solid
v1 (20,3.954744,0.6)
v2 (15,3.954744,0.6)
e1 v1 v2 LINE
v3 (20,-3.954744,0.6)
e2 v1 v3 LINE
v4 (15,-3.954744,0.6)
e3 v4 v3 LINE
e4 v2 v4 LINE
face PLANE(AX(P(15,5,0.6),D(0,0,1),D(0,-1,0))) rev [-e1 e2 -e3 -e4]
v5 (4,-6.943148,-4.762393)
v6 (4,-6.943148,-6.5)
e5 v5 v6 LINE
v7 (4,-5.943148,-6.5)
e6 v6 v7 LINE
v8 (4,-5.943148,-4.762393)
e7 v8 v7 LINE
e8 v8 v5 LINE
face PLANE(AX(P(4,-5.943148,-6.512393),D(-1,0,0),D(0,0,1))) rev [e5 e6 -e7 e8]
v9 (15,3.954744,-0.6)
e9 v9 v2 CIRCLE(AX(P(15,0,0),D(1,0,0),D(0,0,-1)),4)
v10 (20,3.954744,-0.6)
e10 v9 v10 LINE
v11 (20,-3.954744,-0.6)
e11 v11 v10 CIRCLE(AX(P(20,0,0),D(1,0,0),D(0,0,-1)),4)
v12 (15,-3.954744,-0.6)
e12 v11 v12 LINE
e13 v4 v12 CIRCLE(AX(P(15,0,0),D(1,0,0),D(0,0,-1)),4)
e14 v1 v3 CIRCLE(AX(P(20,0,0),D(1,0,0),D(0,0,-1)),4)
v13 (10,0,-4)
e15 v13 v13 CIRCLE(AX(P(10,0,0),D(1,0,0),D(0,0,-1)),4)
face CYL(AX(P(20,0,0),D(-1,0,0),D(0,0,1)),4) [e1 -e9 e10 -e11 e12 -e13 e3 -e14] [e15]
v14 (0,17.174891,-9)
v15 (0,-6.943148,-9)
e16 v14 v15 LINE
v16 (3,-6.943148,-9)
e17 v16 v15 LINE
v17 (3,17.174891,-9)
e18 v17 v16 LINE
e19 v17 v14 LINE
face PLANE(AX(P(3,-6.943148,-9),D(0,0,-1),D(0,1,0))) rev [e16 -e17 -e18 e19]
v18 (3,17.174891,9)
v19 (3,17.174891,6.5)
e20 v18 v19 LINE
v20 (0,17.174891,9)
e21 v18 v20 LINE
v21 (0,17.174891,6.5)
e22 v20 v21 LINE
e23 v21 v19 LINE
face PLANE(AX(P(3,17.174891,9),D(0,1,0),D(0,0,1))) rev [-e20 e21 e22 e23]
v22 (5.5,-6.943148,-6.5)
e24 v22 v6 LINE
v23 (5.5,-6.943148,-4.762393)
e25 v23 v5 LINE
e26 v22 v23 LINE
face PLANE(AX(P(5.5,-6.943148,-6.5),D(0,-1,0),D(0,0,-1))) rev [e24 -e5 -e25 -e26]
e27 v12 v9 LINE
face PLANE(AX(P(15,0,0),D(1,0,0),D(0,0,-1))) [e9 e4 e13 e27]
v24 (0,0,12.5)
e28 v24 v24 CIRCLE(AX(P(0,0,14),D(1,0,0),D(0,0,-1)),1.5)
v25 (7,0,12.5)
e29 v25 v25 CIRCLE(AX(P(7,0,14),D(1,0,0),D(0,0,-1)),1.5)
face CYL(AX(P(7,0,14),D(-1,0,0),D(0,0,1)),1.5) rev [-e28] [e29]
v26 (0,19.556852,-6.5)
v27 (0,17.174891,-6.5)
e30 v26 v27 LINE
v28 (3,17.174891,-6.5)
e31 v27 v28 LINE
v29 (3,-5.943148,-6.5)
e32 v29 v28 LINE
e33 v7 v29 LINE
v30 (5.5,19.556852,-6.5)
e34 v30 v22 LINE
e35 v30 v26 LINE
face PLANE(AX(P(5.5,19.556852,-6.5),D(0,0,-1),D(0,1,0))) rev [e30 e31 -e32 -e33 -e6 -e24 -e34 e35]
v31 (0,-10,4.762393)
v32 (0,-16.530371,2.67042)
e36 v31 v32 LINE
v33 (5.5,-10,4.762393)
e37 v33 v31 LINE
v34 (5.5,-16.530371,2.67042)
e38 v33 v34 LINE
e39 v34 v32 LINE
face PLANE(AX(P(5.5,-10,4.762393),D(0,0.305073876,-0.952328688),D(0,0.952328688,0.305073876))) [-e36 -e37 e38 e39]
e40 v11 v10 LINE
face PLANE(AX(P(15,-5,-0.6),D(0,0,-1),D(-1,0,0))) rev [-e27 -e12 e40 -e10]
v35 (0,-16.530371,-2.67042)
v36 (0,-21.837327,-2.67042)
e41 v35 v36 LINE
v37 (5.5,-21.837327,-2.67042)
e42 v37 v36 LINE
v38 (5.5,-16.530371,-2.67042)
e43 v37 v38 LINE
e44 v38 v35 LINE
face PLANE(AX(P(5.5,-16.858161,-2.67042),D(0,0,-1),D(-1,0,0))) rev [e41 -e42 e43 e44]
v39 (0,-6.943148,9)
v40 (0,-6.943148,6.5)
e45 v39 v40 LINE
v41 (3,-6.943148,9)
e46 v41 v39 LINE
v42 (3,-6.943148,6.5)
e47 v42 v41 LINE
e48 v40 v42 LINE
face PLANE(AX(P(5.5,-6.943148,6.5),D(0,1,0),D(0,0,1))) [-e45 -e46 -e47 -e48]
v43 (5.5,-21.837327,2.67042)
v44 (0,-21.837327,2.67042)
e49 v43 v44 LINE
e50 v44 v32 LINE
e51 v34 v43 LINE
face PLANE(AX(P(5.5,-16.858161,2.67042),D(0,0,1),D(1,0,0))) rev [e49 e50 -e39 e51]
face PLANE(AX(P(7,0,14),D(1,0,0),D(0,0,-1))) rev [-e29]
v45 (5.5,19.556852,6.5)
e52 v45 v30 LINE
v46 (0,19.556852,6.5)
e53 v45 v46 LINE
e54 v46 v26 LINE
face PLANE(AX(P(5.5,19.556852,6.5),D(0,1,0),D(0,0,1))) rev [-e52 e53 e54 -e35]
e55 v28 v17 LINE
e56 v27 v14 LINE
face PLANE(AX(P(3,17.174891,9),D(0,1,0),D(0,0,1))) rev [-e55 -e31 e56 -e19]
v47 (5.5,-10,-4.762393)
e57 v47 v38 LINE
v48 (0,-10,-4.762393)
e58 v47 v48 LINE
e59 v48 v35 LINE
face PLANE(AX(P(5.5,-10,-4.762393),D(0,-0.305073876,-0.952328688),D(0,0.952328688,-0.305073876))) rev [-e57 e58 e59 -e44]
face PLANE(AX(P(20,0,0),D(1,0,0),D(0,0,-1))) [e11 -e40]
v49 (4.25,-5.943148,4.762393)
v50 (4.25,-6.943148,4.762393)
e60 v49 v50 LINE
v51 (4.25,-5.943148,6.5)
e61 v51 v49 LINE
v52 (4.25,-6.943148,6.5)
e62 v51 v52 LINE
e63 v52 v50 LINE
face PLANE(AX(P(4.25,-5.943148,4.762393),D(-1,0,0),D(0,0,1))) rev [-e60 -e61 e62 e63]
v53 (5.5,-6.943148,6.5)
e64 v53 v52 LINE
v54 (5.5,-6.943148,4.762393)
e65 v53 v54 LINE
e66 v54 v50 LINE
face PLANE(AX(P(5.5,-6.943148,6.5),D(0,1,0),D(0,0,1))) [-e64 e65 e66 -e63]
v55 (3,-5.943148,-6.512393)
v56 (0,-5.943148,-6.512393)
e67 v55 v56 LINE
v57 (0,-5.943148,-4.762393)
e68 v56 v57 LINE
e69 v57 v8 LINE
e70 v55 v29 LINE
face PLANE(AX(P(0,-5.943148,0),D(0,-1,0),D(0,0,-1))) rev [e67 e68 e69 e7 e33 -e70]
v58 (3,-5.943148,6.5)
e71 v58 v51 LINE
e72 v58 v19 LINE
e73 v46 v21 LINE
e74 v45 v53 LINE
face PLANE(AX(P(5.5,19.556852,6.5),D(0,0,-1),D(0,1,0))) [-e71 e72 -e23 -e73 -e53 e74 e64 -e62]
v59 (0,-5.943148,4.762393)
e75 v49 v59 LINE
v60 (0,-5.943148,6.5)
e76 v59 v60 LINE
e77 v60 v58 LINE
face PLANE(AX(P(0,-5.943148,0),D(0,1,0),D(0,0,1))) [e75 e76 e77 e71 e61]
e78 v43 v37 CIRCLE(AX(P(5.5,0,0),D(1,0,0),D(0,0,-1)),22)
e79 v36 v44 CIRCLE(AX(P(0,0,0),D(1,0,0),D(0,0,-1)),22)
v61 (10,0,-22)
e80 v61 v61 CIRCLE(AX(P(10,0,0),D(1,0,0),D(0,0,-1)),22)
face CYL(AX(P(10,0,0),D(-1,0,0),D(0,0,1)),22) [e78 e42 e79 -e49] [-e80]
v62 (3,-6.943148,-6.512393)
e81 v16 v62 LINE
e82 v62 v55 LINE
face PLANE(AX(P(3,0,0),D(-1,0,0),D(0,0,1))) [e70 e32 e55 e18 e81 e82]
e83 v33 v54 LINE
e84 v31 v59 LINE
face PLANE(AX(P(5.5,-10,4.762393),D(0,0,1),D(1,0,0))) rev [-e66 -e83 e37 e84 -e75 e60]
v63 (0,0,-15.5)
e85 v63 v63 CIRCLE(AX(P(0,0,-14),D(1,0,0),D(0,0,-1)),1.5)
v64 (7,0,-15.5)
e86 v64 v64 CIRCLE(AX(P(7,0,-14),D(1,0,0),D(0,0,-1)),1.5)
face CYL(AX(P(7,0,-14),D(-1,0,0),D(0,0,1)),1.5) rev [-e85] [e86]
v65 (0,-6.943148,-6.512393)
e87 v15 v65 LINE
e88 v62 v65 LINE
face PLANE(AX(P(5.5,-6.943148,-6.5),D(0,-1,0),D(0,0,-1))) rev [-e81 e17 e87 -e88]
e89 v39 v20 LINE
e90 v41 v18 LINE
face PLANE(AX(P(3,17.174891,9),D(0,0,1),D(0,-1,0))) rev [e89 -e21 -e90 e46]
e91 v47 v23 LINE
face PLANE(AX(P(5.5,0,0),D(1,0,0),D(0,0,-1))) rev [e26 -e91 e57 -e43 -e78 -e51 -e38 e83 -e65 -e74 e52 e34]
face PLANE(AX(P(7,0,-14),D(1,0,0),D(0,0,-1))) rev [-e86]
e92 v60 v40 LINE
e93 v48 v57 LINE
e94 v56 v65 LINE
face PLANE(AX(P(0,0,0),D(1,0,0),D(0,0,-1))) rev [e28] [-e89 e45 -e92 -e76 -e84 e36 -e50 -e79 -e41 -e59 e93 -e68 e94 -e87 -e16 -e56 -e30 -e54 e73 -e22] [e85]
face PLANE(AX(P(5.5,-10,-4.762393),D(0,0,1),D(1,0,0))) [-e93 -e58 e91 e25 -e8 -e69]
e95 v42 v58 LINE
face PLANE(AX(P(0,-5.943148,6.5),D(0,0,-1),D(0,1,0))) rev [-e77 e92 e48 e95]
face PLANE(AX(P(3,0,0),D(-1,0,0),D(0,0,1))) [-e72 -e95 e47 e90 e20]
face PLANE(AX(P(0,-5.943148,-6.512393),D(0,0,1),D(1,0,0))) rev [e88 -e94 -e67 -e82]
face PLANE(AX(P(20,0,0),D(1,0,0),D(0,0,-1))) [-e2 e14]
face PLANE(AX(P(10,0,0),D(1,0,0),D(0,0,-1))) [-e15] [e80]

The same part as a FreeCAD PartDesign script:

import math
import FreeCAD as App
import Part
import Sketcher

V = App.Vector
Q = App.Units.Quantity


def add_polygon(sketch, points):
    """Adds a closed chain of lines whose ends are joined by coincident constraints."""
    first, n = sketch.GeometryCount, len(points)
    for a, b in zip(points, points[1:] + points[:1]):
        sketch.addGeometry(Part.LineSegment(App.Vector(*a, 0), App.Vector(*b, 0)), False)
    for i in range(n):
        sketch.addConstraint(Sketcher.Constraint("Coincident", first + i, 2, first + (i + 1) % n, 1))

doc = App.newDocument("Part")
params = doc.addObject("Spreadsheet::Sheet", "Params")
for row, (alias, value) in enumerate([
    ("sketch1_diameter", "44 mm"),
    ("pad1_length", "10 mm"),
    ("sketch2_radius", "22 mm"),
    ("sketch2_height", "13 mm"),
    ("sketch2_width", "26.5 mm"),
    ("pocket1_length", "5.5 mm"),
    ("sketch3_height", "18 mm"),
    ("pocket2_length", "3 mm"),
    ("sketch4_diameter", "8 mm"),
    ("pad2_length", "10 mm"),
    ("sketch5_width", "10 mm"),
    ("sketch5_height", "1.2 mm"),
    ("pocket3_length", "5 mm"),
    ("sketch6_width", "4 mm"),
    ("sketch6_height", "1.75 mm"),
    ("pad3_length", "1 mm"),
    ("sketch7_width", "4.25 mm"),
    ("pad4_length", "1 mm"),
    ("sketch8_diameter", "3 mm"),
    ("pocket4_length", "7 mm"),
], start=1):
    params.set(f"A{row}", alias)
    params.set(f"B{row}", "=" + value)
    params.setAlias(f"B{row}", alias)

body = doc.addObject("PartDesign::Body", "Body")

# Sketch on YZ plane
sketch1 = body.newObject("Sketcher::SketchObject", "Sketch")
sketch1.AttachmentSupport = (doc.getObject("YZ_Plane"), [""])
sketch1.MapMode = "FlatFace"
sketch1.addGeometry(Part.Circle(V(0, 0, 0), V(0, 0, 1), 22), False)
sketch1.addConstraint([
    Sketcher.Constraint("Coincident", 0, 3, -1, 1),
    Sketcher.Constraint("Diameter", 0, Q("44 mm")),
])
sketch1.setExpression("Constraints[1]", "Params.sketch1_diameter")
pad1 = body.newObject("PartDesign::Pad", "Pad")
pad1.Profile = sketch1
pad1.setExpression("Length", "Params.pad1_length")

# Sketch on YZ plane
sketch2 = body.newObject("Sketcher::SketchObject", "Sketch001")
sketch2.AttachmentSupport = (doc.getObject("YZ_Plane"), [""])
sketch2.MapMode = "FlatFace"
sketch2.addGeometry([
    Part.LineSegment(V(-10, 4.762393, 0), V(-16.530371, 2.67042, 0)),  # 0
    Part.LineSegment(V(-16.530371, 2.67042, 0), V(-21.837327, 2.67042, 0)),  # 1
    Part.ArcOfCircle(Part.Circle(V(0, 0, 0), V(0, 0, 1), 22), math.radians(173.028089), math.radians(177.393224)),  # 2
    Part.LineSegment(V(-21.977234, 1.000585, 0), V(-25.25, 0, 0)),  # 3
    Part.LineSegment(V(-25.25, 0, 0), V(-21.977234, -1.000585, 0)),  # 4
    Part.ArcOfCircle(Part.Circle(V(0, 0, 0), V(0, 0, 1), 22), math.radians(-177.393224), math.radians(-173.028089)),  # 5
    Part.LineSegment(V(-21.837327, -2.67042, 0), V(-16.530371, -2.67042, 0)),  # 6
    Part.LineSegment(V(-16.530371, -2.67042, 0), V(-10, -4.762393, 0)),  # 7
    Part.LineSegment(V(-10, -4.762393, 0), V(-6.943148, -4.762393, 0)),  # 8
    Part.LineSegment(V(-6.943148, -4.762393, 0), V(-6.943148, -6.5, 0)),  # 9
    Part.LineSegment(V(-6.943148, -6.5, 0), V(19.556852, -6.5, 0)),  # 10
    Part.LineSegment(V(19.556852, -6.5, 0), V(19.556852, 6.5, 0)),  # 11
    Part.LineSegment(V(19.556852, 6.5, 0), V(-6.943148, 6.5, 0)),  # 12
    Part.LineSegment(V(-6.943148, 6.5, 0), V(-6.943148, 4.762393, 0)),  # 13
    Part.LineSegment(V(-6.943148, 4.762393, 0), V(-10, 4.762393, 0)),  # 14
], False)
sketch2.addConstraint([
    Sketcher.Constraint("Coincident", 0, 2, 1, 1),
    Sketcher.Constraint("Coincident", 1, 2, 2, 1),
    Sketcher.Constraint("Coincident", 2, 2, 3, 1),
    Sketcher.Constraint("Coincident", 3, 2, 4, 1),
    Sketcher.Constraint("Coincident", 4, 2, 5, 1),
    Sketcher.Constraint("Coincident", 5, 2, 6, 1),
    Sketcher.Constraint("Coincident", 6, 2, 7, 1),
    Sketcher.Constraint("Coincident", 7, 2, 8, 1),
    Sketcher.Constraint("Coincident", 8, 2, 9, 1),
    Sketcher.Constraint("Coincident", 9, 2, 10, 1),
    Sketcher.Constraint("Coincident", 10, 2, 11, 1),
    Sketcher.Constraint("Coincident", 11, 2, 12, 1),
    Sketcher.Constraint("Coincident", 12, 2, 13, 1),
    Sketcher.Constraint("Coincident", 13, 2, 14, 1),
    Sketcher.Constraint("Coincident", 14, 2, 0, 1),
    Sketcher.Constraint("Horizontal", 1),
    Sketcher.Constraint("Horizontal", 6),
    Sketcher.Constraint("Horizontal", 8),
    Sketcher.Constraint("Vertical", 9),
    Sketcher.Constraint("Horizontal", 10),
    Sketcher.Constraint("Vertical", 11),
    Sketcher.Constraint("Horizontal", 12),
    Sketcher.Constraint("Vertical", 13),
    Sketcher.Constraint("Horizontal", 14),
    Sketcher.Constraint("Coincident", 2, 3, -1, 1),
    Sketcher.Constraint("Coincident", 5, 3, -1, 1),
    Sketcher.Constraint("Equal", 2, 5),
    Sketcher.Constraint("Symmetric", 0, 2, 6, 2, -1),
    Sketcher.Constraint("Symmetric", 9, 2, 12, 2, -1),
    Sketcher.Constraint("Symmetric", 7, 2, 14, 2, -1),
    Sketcher.Constraint("PointOnObject", 3, 2, -1),
    Sketcher.Constraint("Vertical", 2, 2, 4, 2),
    Sketcher.Constraint("Radius", 2, Q("22 mm")),
    Sketcher.Constraint("DistanceY", 11, 1, 11, 2, Q("13 mm")),
    Sketcher.Constraint("Angle", 3, Q("-163 deg")),
    Sketcher.Constraint("DistanceX", 10, 1, 10, 2, Q("26.5 mm")),
    Sketcher.Constraint("DistanceX", 7, 2, -1, 1, Q("10 mm")),
    Sketcher.Constraint("DistanceX", 3, 2, -1, 1, Q("25.25 mm")),
    Sketcher.Constraint("DistanceX", 8, 1, 8, 2, Q("3.056852 mm")),
    Sketcher.Constraint("DistanceX", 1, 2, 1, 1, Q("5.306956 mm")),
    Sketcher.Constraint("DistanceY", 9, 2, 9, 1, Q("1.737607 mm")),
    Sketcher.Constraint("DistanceX", 0, 2, -1, 1, Q("16.530371 mm")),
])
sketch2.setExpression("Constraints[32]", "Params.sketch2_radius")
sketch2.setExpression("Constraints[33]", "Params.sketch2_height")
sketch2.setExpression("Constraints[35]", "Params.sketch2_width")
pocket1 = body.newObject("PartDesign::Pocket", "Pocket")
pocket1.Profile = sketch2
pocket1.setExpression("Length", "Params.pocket1_length")
pocket1.Reversed = True

# Sketch on YZ plane
sketch3 = body.newObject("Sketcher::SketchObject", "Sketch002")
sketch3.AttachmentSupport = (doc.getObject("YZ_Plane"), [""])
sketch3.MapMode = "FlatFace"
add_polygon(sketch3, [(17.174891, -9), (-6.943148, -9), (-6.943148, 9), (17.174891, 9)])  # lines 0-3
sketch3.addConstraint([
    Sketcher.Constraint("Horizontal", 0),
    Sketcher.Constraint("Vertical", 1),
    Sketcher.Constraint("Horizontal", 2),
    Sketcher.Constraint("Vertical", 3),
    Sketcher.Constraint("DistanceY", 1, 1, 1, 2, Q("18 mm")),
    Sketcher.Constraint("DistanceY", 0, 2, -1, 1, Q("9 mm")),
    Sketcher.Constraint("DistanceX", 0, 2, 0, 1, Q("24.118039 mm")),
    Sketcher.Constraint("DistanceX", 0, 2, -1, 1, Q("6.943148 mm")),
])
sketch3.setExpression("Constraints[8]", "Params.sketch3_height")
pocket2 = body.newObject("PartDesign::Pocket", "Pocket001")
pocket2.Profile = sketch3
pocket2.setExpression("Length", "Params.pocket2_length")
pocket2.Reversed = True

# Sketch on YZ plane
sketch4 = body.newObject("Sketcher::SketchObject", "Sketch003")
sketch4.AttachmentSupport = (doc.getObject("YZ_Plane"), [""])
sketch4.MapMode = "FlatFace"
sketch4.AttachmentOffset = App.Placement(V(0, 0, 10), App.Rotation())
sketch4.addGeometry(Part.Circle(V(0, 0, 0), V(0, 0, 1), 4), False)
sketch4.addConstraint([
    Sketcher.Constraint("Coincident", 0, 3, -1, 1),
    Sketcher.Constraint("Diameter", 0, Q("8 mm")),
])
sketch4.setExpression("Constraints[1]", "Params.sketch4_diameter")
pad2 = body.newObject("PartDesign::Pad", "Pad001")
pad2.Profile = sketch4
pad2.setExpression("Length", "Params.pad2_length")

# Sketch on YZ plane
sketch5 = body.newObject("Sketcher::SketchObject", "Sketch004")
sketch5.AttachmentSupport = (doc.getObject("YZ_Plane"), [""])
sketch5.MapMode = "FlatFace"
sketch5.AttachmentOffset = App.Placement(V(0, 0, 20), App.Rotation())
add_polygon(sketch5, [(5, 0.6), (-5, 0.6), (-5, -0.6), (5, -0.6)])  # lines 0-3
sketch5.addConstraint([
    Sketcher.Constraint("Horizontal", 0),
    Sketcher.Constraint("Vertical", 1),
    Sketcher.Constraint("Horizontal", 2),
    Sketcher.Constraint("Vertical", 3),
    Sketcher.Constraint("Symmetric", 0, 2, 2, 2, -1, 1),
    Sketcher.Constraint("DistanceX", 0, 2, 0, 1, Q("10 mm")),
    Sketcher.Constraint("DistanceY", 1, 2, 1, 1, Q("1.2 mm")),
])
sketch5.setExpression("Constraints[9]", "Params.sketch5_width")
sketch5.setExpression("Constraints[10]", "Params.sketch5_height")
pocket3 = body.newObject("PartDesign::Pocket", "Pocket002")
pocket3.Profile = sketch5
pocket3.setExpression("Length", "Params.pocket3_length")

# Sketch on XZ plane
sketch6 = body.newObject("Sketcher::SketchObject", "Sketch005")
sketch6.AttachmentSupport = (doc.getObject("XZ_Plane"), [""])
sketch6.MapMode = "FlatFace"
sketch6.AttachmentOffset = App.Placement(V(0, 0, 6.943148), App.Rotation())
add_polygon(sketch6, [(0, -6.512393), (0, -4.762393), (4, -4.762393), (4, -6.512393)])  # lines 0-3
sketch6.addConstraint([
    Sketcher.Constraint("Vertical", 0),
    Sketcher.Constraint("Horizontal", 1),
    Sketcher.Constraint("Vertical", 2),
    Sketcher.Constraint("Horizontal", 3),
    Sketcher.Constraint("PointOnObject", 0, 2, -2),
    Sketcher.Constraint("DistanceX", 1, 1, 1, 2, Q("4 mm")),
    Sketcher.Constraint("DistanceY", 0, 1, 0, 2, Q("1.75 mm")),
    Sketcher.Constraint("DistanceY", 0, 2, -1, 1, Q("4.762393 mm")),
])
sketch6.setExpression("Constraints[9]", "Params.sketch6_width")
sketch6.setExpression("Constraints[10]", "Params.sketch6_height")
pad3 = body.newObject("PartDesign::Pad", "Pad002")
pad3.Profile = sketch6
pad3.setExpression("Length", "Params.pad3_length")
pad3.Reversed = True

# Sketch on XZ plane
sketch7 = body.newObject("Sketcher::SketchObject", "Sketch006")
sketch7.AttachmentSupport = (doc.getObject("XZ_Plane"), [""])
sketch7.MapMode = "FlatFace"
sketch7.AttachmentOffset = App.Placement(V(0, 0, 6.943148), App.Rotation())
add_polygon(sketch7, [(0, 4.762393), (0, 6.5), (4.25, 6.5), (4.25, 4.762393)])  # lines 0-3
sketch7.addConstraint([
    Sketcher.Constraint("Vertical", 0),
    Sketcher.Constraint("Horizontal", 1),
    Sketcher.Constraint("Vertical", 2),
    Sketcher.Constraint("Horizontal", 3),
    Sketcher.Constraint("PointOnObject", 0, 2, -2),
    Sketcher.Constraint("DistanceX", 1, 1, 1, 2, Q("4.25 mm")),
    Sketcher.Constraint("DistanceY", -1, 1, 0, 2, Q("6.5 mm")),
    Sketcher.Constraint("DistanceY", 0, 1, 0, 2, Q("1.737607 mm")),
])
sketch7.setExpression("Constraints[9]", "Params.sketch7_width")
pad4 = body.newObject("PartDesign::Pad", "Pad003")
pad4.Profile = sketch7
pad4.setExpression("Length", "Params.pad4_length")
pad4.Reversed = True

# Sketch on YZ plane
sketch8 = body.newObject("Sketcher::SketchObject", "Sketch007")
sketch8.AttachmentSupport = (doc.getObject("YZ_Plane"), [""])
sketch8.MapMode = "FlatFace"
sketch8.addGeometry([
    Part.Circle(V(0, 14, 0), V(0, 0, 1), 1.5),
    Part.Circle(V(0, -14, 0), V(0, 0, 1), 1.5),
], False)
sketch8.addConstraint([
    Sketcher.Constraint("Equal", 0, 1),
    Sketcher.Constraint("Symmetric", 0, 3, 1, 3, -1, 1),
    Sketcher.Constraint("PointOnObject", 0, 3, -2),
    Sketcher.Constraint("Diameter", 0, Q("3 mm")),
    Sketcher.Constraint("DistanceY", -1, 1, 0, 3, Q("14 mm")),
])
sketch8.setExpression("Constraints[3]", "Params.sketch8_diameter")
pocket4 = body.newObject("PartDesign::Pocket", "Pocket003")
pocket4.Profile = sketch8
pocket4.setExpression("Length", "Params.pocket4_length")
pocket4.Reversed = True

doc.recompute()
